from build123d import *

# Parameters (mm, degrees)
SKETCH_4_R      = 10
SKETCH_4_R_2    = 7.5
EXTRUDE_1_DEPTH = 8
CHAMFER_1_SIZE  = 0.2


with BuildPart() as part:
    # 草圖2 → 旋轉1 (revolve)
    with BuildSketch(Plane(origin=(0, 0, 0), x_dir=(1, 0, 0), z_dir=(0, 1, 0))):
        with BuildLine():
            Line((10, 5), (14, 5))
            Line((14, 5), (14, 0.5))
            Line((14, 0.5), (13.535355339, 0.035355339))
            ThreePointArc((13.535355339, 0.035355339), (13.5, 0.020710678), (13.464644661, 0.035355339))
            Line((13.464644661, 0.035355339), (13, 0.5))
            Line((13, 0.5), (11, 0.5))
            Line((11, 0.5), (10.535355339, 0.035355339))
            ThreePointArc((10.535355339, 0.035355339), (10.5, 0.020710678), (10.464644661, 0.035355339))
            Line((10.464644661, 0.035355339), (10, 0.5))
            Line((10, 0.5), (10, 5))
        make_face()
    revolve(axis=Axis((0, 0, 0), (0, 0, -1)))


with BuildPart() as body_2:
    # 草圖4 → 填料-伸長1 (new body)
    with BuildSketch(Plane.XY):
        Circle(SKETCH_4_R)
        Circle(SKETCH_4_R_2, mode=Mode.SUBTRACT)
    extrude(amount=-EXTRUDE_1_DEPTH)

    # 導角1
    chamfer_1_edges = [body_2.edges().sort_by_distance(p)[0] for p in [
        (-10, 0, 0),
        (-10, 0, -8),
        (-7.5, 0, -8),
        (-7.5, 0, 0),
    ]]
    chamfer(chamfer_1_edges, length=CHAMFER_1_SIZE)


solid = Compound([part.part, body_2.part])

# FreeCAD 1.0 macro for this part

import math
import FreeCAD as App
import Part
import Sketcher
from FreeCAD import Vector
Q = App.Units.Quantity


def edges_at(feature, points):
    """Names of the edges that pass closest to the given points."""
    edges = feature.Shape.Edges
    near = lambda p: min(range(len(edges)), key=lambda i: edges[i].distToShape(Part.Vertex(*p))[0])
    return sorted({f"Edge{near(p) + 1}" for p in points})

doc = App.newDocument("Part")
body = doc.addObject("PartDesign::Body", "Body")

# Sketch on XZ plane
sketch1 = body.newObject("Sketcher::SketchObject", "Sketch")
sketch1.AttachmentSupport = (doc.getObject("XZ_Plane"), [""])
sketch1.MapMode = "FlatFace"
sketch1.addGeometry([
    Part.LineSegment(Vector(14, -5, 0), Vector(10, -5, 0)),  # 0
    Part.LineSegment(Vector(10, -5, 0), Vector(10, -0.5, 0)),  # 1
    Part.LineSegment(Vector(10, -0.5, 0), Vector(10.464645, -0.035355, 0)),  # 2
    Part.ArcOfCircle(Part.Circle(Vector(10.5, -0.070711, 0), Vector(0, 0, 1), 0.05), math.radians(45), math.radians(135)),  # 3
    Part.LineSegment(Vector(10.535355, -0.035355, 0), Vector(11, -0.5, 0)),  # 4
    Part.LineSegment(Vector(11, -0.5, 0), Vector(13, -0.5, 0)),  # 5
    Part.LineSegment(Vector(13, -0.5, 0), Vector(13.464645, -0.035355, 0)),  # 6
    Part.ArcOfCircle(Part.Circle(Vector(13.5, -0.070711, 0), Vector(0, 0, 1), 0.05), math.radians(45), math.radians(135)),  # 7
    Part.LineSegment(Vector(13.535355, -0.035355, 0), Vector(14, -0.5, 0)),  # 8
    Part.LineSegment(Vector(14, -0.5, 0), Vector(14, -5, 0)),  # 9
], False)
sketch1.addConstraint([
    Sketcher.Constraint("Coincident", 0, 2, 1, 1),
    Sketcher.Constraint("Coincident", 1, 2, 2, 1),
    Sketcher.Constraint("Tangent", 2, 2, 3, 2),
    Sketcher.Constraint("Tangent", 3, 1, 4, 1),
    Sketcher.Constraint("Coincident", 4, 2, 5, 1),
    Sketcher.Constraint("Coincident", 5, 2, 6, 1),
    Sketcher.Constraint("Tangent", 6, 2, 7, 2),
    Sketcher.Constraint("Tangent", 7, 1, 8, 1),
    Sketcher.Constraint("Coincident", 8, 2, 9, 1),
    Sketcher.Constraint("Coincident", 9, 2, 0, 1),
    Sketcher.Constraint("Horizontal", 0),
    Sketcher.Constraint("Vertical", 1),
    Sketcher.Constraint("Horizontal", 5),
    Sketcher.Constraint("Vertical", 9),
    Sketcher.Constraint("Equal", 3, 7),
    Sketcher.Constraint("Perpendicular", 2, 4),
    Sketcher.Constraint("Perpendicular", 4, 6),
    Sketcher.Constraint("Perpendicular", 6, 8),
    Sketcher.Constraint("Horizontal", 3, 3, 7, 3),
    Sketcher.Constraint("Horizontal", 2, 2, 3, 1),
    Sketcher.Constraint("Horizontal", 1, 2, 4, 2),
    Sketcher.Constraint("Horizontal", 5, 2, 8, 2),
    Sketcher.Constraint("DistanceX", 0, 2, 0, 1, Q("4 mm")),
    Sketcher.Constraint("DistanceX", 5, 1, 5, 2, Q("2 mm")),
    Sketcher.Constraint("Radius", 3, Q("0.05 mm")),
    Sketcher.Constraint("DistanceY", 1, 1, 1, 2, Q("4.5 mm")),
    Sketcher.Constraint("DistanceX", -1, 1, 0, 2, Q("10 mm")),
    Sketcher.Constraint("DistanceY", 0, 2, -1, 1, Q("5 mm")),
])
revolution = body.newObject("PartDesign::Revolution", "Revolution")
revolution.Profile = sketch1
revolution.ReferenceAxis = (sketch1, ["V_Axis"])
revolution.Angle = 360
body2 = doc.addObject("PartDesign::Body", "Body001")

# Sketch on XY plane
sketch2 = body2.newObject("Sketcher::SketchObject", "Sketch001")
sketch2.AttachmentSupport = (doc.getObject("XY_Plane001"), [""])
sketch2.MapMode = "FlatFace"
sketch2.addGeometry([
    Part.Circle(Vector(0, 0, 0), Vector(0, 0, 1), 10),
    Part.Circle(Vector(0, 0, 0), Vector(0, 0, 1), 7.5),
], False)
sketch2.addConstraint([
    Sketcher.Constraint("Coincident", 0, 3, -1, 1),
    Sketcher.Constraint("Coincident", 1, 3, -1, 1),
    Sketcher.Constraint("Diameter", 0, Q("20 mm")),
    Sketcher.Constraint("Diameter", 1, Q("15 mm")),
])
pad1 = body2.newObject("PartDesign::Pad", "Pad")
pad1.Profile = sketch2
pad1.Length = 8
pad1.Reversed = True
doc.recompute()

chamfer = body2.newObject("PartDesign::Chamfer", "Chamfer")
chamfer.Base = (pad1, edges_at(pad1, [
    (-10, 0, 0),
    (-10, 0, -8),
    (-7.5, 0, -8),
    (-7.5, 0, 0),
]))
chamfer.Size = 0.2

doc.recompute()
